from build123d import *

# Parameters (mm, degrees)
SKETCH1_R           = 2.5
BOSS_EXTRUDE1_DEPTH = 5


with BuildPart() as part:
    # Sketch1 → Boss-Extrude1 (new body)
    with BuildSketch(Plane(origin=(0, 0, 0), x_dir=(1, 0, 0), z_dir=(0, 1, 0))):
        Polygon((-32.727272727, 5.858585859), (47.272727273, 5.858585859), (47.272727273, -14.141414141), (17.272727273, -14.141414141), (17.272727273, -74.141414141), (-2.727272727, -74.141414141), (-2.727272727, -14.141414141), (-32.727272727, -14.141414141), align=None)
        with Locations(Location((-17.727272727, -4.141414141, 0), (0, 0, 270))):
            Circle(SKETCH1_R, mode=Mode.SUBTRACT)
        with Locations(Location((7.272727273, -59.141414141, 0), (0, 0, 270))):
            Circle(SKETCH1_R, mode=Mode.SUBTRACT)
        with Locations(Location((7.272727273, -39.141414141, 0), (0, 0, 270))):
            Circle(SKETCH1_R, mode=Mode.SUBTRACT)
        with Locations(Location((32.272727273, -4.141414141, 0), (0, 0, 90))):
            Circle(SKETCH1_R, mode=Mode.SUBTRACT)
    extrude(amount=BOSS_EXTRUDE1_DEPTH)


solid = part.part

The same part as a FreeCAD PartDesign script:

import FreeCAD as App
import Part
import Sketcher
Q = App.Units.Quantity

doc = App.newDocument("Part")
params = doc.addObject("Spreadsheet::Sheet", "Params")
for row, (alias, value) in enumerate([
    ("sketch1_diameter", "5 mm"),
    ("sketch1_width", "80 mm"),
    ("sketch1_width2", "30 mm"),
    ("sketch1_height", "60 mm"),
    ("pad1_length", "5 mm"),
], start=1):
    params.set(f"A{row}", alias)
    params.set(f"B{row}", "=" + value)
    params.setAlias(f"B{row}", alias)

body = doc.addObject("PartDesign::Body", "Body")

# Sketch on XZ plane
sketch1 = doc.addObject("Sketcher::SketchObject", "Sketch")
body.addObject(sketch1)
sketch1.AttachmentSupport = (doc.XZ_Plane, [""])
sketch1.MapMode = "FlatFace"
sketch1.addGeometry([
    Part.LineSegment(App.Vector(47.3, -5.9, 0), App.Vector(-32.7, -5.9, 0)),  # 0
    Part.LineSegment(App.Vector(-32.7, -5.9, 0), App.Vector(-32.7, 14.1, 0)),  # 1
    Part.LineSegment(App.Vector(-32.7, 14.1, 0), App.Vector(-2.7, 14.1, 0)),  # 2
    Part.LineSegment(App.Vector(-2.7, 14.1, 0), App.Vector(-2.7, 74.1, 0)),  # 3
    Part.LineSegment(App.Vector(-2.7, 74.1, 0), App.Vector(17.3, 74.1, 0)),  # 4
    Part.LineSegment(App.Vector(17.3, 74.1, 0), App.Vector(17.3, 14.1, 0)),  # 5
    Part.LineSegment(App.Vector(17.3, 14.1, 0), App.Vector(47.3, 14.1, 0)),  # 6
    Part.LineSegment(App.Vector(47.3, 14.1, 0), App.Vector(47.3, -5.9, 0)),  # 7
    Part.Circle(App.Vector(7.3, 59.1, 0), App.Vector(0, 0, 1), 2.5),  # 8
    Part.Circle(App.Vector(7.3, 39.1, 0), App.Vector(0, 0, 1), 2.5),  # 9
    Part.Circle(App.Vector(32.3, 4.1, 0), App.Vector(0, 0, 1), 2.5),  # 10
    Part.Circle(App.Vector(-17.7, 4.1, 0), App.Vector(0, 0, 1), 2.5),  # 11
], False)
sketch1.addConstraint([
    Sketcher.Constraint("Coincident", 0, 2, 1, 1),
    Sketcher.Constraint("Coincident", 1, 2, 2, 1),
    Sketcher.Constraint("Coincident", 2, 2, 3, 1),
    Sketcher.Constraint("Coincident", 3, 2, 4, 1),
    Sketcher.Constraint("Coincident", 4, 2, 5, 1),
    Sketcher.Constraint("Coincident", 5, 2, 6, 1),
    Sketcher.Constraint("Coincident", 6, 2, 7, 1),
    Sketcher.Constraint("Coincident", 7, 2, 0, 1),
    Sketcher.Constraint("Horizontal", 0),
    Sketcher.Constraint("Vertical", 1),
    Sketcher.Constraint("Horizontal", 2),
    Sketcher.Constraint("Vertical", 3),
    Sketcher.Constraint("Horizontal", 4),
    Sketcher.Constraint("Vertical", 5),
    Sketcher.Constraint("Horizontal", 6),
    Sketcher.Constraint("Vertical", 7),
    Sketcher.Constraint("Equal", 8, 9),
    Sketcher.Constraint("Equal", 9, 10),
    Sketcher.Constraint("Equal", 10, 11),
    Sketcher.Constraint("Horizontal", 10, 3, 11, 3),
    Sketcher.Constraint("Horizontal", 2, 2, 5, 2),
    Sketcher.Constraint("Vertical", 8, 3, 9, 3),
    Sketcher.Constraint("Equal", 2, 6),
    Sketcher.Constraint("Equal", 4, 1),
    Sketcher.Constraint("Diameter", 8, Q("5 mm")),
    Sketcher.Constraint("DistanceX", 0, 2, 0, 1, Q("80 mm")),
    Sketcher.Constraint("DistanceX", 2, 1, 2, 2, Q("30 mm")),
    Sketcher.Constraint("DistanceY", 3, 1, 3, 2, Q("60 mm")),
    Sketcher.Constraint("DistanceY", 9, 3, 8, 3, Q("20 mm")),
    Sketcher.Constraint("DistanceX", 9, 3, 10, 3, Q("25 mm")),
    Sketcher.Constraint("DistanceY", 10, 3, 9, 3, Q("35 mm")),
    Sketcher.Constraint("DistanceX", 11, 3, 9, 3, Q("25 mm")),
    Sketcher.Constraint("DistanceX", 0, 2, 11, 3, Q("15 mm")),
    Sketcher.Constraint("DistanceY", 0, 2, 11, 3, Q("10 mm")),
    Sketcher.Constraint("DistanceX", -1, 1, 8, 3, Q("7.272727 mm")),
    Sketcher.Constraint("DistanceY", -1, 1, 8, 3, Q("59.141414 mm")),
])
sketch1.setExpression("Constraints[24]", "Params.sketch1_diameter")
sketch1.setExpression("Constraints[25]", "Params.sketch1_width")
sketch1.setExpression("Constraints[26]", "Params.sketch1_width2")
sketch1.setExpression("Constraints[27]", "Params.sketch1_height")
pad1 = doc.addObject("PartDesign::Pad", "Pad")
body.addObject(pad1)
pad1.Profile = sketch1
pad1.setExpression("Length", "Params.pad1_length")
pad1.Reversed = True

doc.recompute()
